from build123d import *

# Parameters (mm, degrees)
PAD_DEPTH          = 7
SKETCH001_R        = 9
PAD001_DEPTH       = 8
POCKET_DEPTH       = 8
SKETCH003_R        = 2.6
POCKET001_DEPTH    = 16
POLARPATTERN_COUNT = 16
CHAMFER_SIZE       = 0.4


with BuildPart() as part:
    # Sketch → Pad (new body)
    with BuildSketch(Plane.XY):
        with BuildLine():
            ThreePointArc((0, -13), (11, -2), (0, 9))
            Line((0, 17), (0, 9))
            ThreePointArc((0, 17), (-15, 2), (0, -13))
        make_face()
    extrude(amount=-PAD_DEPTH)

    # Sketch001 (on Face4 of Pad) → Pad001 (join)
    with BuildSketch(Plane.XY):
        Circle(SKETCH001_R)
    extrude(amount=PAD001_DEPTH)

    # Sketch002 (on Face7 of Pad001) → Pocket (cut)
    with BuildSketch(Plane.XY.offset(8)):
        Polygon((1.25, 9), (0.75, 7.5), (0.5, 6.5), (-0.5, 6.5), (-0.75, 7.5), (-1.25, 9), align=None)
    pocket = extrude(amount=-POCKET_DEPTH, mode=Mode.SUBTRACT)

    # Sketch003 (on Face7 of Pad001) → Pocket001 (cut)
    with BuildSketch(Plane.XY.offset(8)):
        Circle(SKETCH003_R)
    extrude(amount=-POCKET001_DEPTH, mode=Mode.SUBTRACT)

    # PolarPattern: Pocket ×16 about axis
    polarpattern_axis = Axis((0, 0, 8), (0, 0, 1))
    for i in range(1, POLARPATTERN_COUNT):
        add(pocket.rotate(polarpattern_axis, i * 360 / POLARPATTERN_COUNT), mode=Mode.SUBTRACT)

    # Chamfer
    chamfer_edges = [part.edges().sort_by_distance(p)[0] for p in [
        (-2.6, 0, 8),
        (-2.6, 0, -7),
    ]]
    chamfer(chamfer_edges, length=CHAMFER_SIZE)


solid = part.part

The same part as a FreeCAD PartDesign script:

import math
import FreeCAD as App
import Part
import Sketcher

V = App.Vector


def edges_at(feature, points):
    """Names of the edges that pass closest to the given points."""
    edges = feature.Shape.Edges
    near = lambda p: min(range(len(edges)), key=lambda i: edges[i].distToShape(Part.Vertex(*p))[0])
    return sorted({f"Edge{near(p) + 1}" for p in points})

doc = App.newDocument("Part")
body = doc.addObject("PartDesign::Body", "Body")

# Sketch on XY plane
sketch1 = body.newObject("Sketcher::SketchObject", "Sketch")
sketch1.AttachmentSupport = (doc.getObject("XY_Plane"), [""])
sketch1.MapMode = "FlatFace"
sketch1.addGeometry(Part.ArcOfCircle(Part.Circle(V(0, -2, 0), V(0, 0, 1), 11), math.radians(-90), math.radians(90)), False)
sketch1.addGeometry(Part.LineSegment(V(0, 9, 0), V(0, 17, 0)), False)
sketch1.addGeometry(Part.ArcOfCircle(Part.Circle(V(0, 2, 0), V(0, 0, 1), 15), math.radians(90), math.radians(270)), False)
sketch1.addConstraint(Sketcher.Constraint("Coincident", 0, 2, 1, 1))
sketch1.addConstraint(Sketcher.Constraint("Coincident", 1, 2, 2, 1))
sketch1.addConstraint(Sketcher.Constraint("Tangent", 2, 2, 0, 1))
sketch1.addConstraint(Sketcher.Constraint("Vertical", 1))
sketch1.addConstraint(Sketcher.Constraint("Symmetric", 0, 3, 2, 3, -1, 1))
sketch1.addConstraint(Sketcher.Constraint("PointOnObject", 0, 3, -2))
sketch1.addConstraint(Sketcher.Constraint("PointOnObject", 0, 2, -2))
sketch1.addConstraint(Sketcher.Constraint("Radius", 0, 11.0))
sketch1.addConstraint(Sketcher.Constraint("Radius", 2, 15.0))
pad1 = body.newObject("PartDesign::Pad", "Pad")
pad1.Profile = sketch1
pad1.Length = 7
pad1.Reversed = True

# Sketch on XY plane
sketch2 = body.newObject("Sketcher::SketchObject", "Sketch001")
sketch2.AttachmentSupport = (doc.getObject("XY_Plane"), [""])
sketch2.MapMode = "FlatFace"
sketch2.addGeometry(Part.Circle(V(0, 0, 0), V(0, 0, 1), 9), False)
sketch2.addConstraint(Sketcher.Constraint("Coincident", 0, 3, -1, 1))
sketch2.addConstraint(Sketcher.Constraint("Diameter", 0, 18.0))
pad2 = body.newObject("PartDesign::Pad", "Pad001")
pad2.Profile = sketch2
pad2.Length = 8

# Sketch on XY plane
sketch3 = body.newObject("Sketcher::SketchObject", "Sketch002")
sketch3.AttachmentSupport = (doc.getObject("XY_Plane"), [""])
sketch3.MapMode = "FlatFace"
sketch3.AttachmentOffset = App.Placement(V(0, 0, 8), App.Rotation())
sketch3.addGeometry(Part.LineSegment(V(0.8, 7.5, 0), V(1.2, 9, 0)), False)
sketch3.addGeometry(Part.LineSegment(V(1.2, 9, 0), V(-1.2, 9, 0)), False)
sketch3.addGeometry(Part.LineSegment(V(-1.2, 9, 0), V(-0.8, 7.5, 0)), False)
sketch3.addGeometry(Part.LineSegment(V(-0.8, 7.5, 0), V(-0.5, 6.5, 0)), False)
sketch3.addGeometry(Part.LineSegment(V(-0.5, 6.5, 0), V(0.5, 6.5, 0)), False)
sketch3.addGeometry(Part.LineSegment(V(0.5, 6.5, 0), V(0.8, 7.5, 0)), False)
sketch3.addConstraint(Sketcher.Constraint("Coincident", 0, 2, 1, 1))
sketch3.addConstraint(Sketcher.Constraint("Coincident", 1, 2, 2, 1))
sketch3.addConstraint(Sketcher.Constraint("Coincident", 2, 2, 3, 1))
sketch3.addConstraint(Sketcher.Constraint("Coincident", 3, 2, 4, 1))
sketch3.addConstraint(Sketcher.Constraint("Coincident", 4, 2, 5, 1))
sketch3.addConstraint(Sketcher.Constraint("Coincident", 5, 2, 0, 1))
sketch3.addConstraint(Sketcher.Constraint("Horizontal", 1))
sketch3.addConstraint(Sketcher.Constraint("Horizontal", 4))
sketch3.addConstraint(Sketcher.Constraint("Symmetric", 2, 2, 5, 2, -2))
sketch3.addConstraint(Sketcher.Constraint("Equal", 0, 2))
sketch3.addConstraint(Sketcher.Constraint("Equal", 3, 5))
sketch3.addConstraint(Sketcher.Constraint("DistanceX", 4, 1, 4, 2, 1.0))
sketch3.addConstraint(Sketcher.Constraint("DistanceX", 1, 2, 1, 1, 2.5))
sketch3.addConstraint(Sketcher.Constraint("DistanceY", -1, 1, 0, 2, 9.0))
sketch3.addConstraint(Sketcher.Constraint("DistanceX", 2, 2, 0, 2, 2.0))
sketch3.addConstraint(Sketcher.Constraint("DistanceY", 3, 2, 2, 2, 1.0))
sketch3.addConstraint(Sketcher.Constraint("DistanceY", -1, 1, 2, 2, 7.5))
pocket1 = body.newObject("PartDesign::Pocket", "Pocket")
pocket1.Profile = sketch3
pocket1.Length = 8

# Sketch on XY plane
sketch4 = body.newObject("Sketcher::SketchObject", "Sketch003")
sketch4.AttachmentSupport = (doc.getObject("XY_Plane"), [""])
sketch4.MapMode = "FlatFace"
sketch4.AttachmentOffset = App.Placement(V(0, 0, 8), App.Rotation())
sketch4.addGeometry(Part.Circle(V(0, 0, 0), V(0, 0, 1), 2.6), False)
sketch4.addConstraint(Sketcher.Constraint("Coincident", 0, 3, -1, 1))
sketch4.addConstraint(Sketcher.Constraint("Diameter", 0, 5.2))
pocket2 = body.newObject("PartDesign::Pocket", "Pocket001")
pocket2.Profile = sketch4
pocket2.Length = 16
doc.recompute()

polarpattern = body.newObject("PartDesign::PolarPattern", "PolarPattern")
polarpattern.Originals = [pocket1]
polarpattern.Axis = (doc.getObject("Z_Axis"), [""])
polarpattern.Angle = 360
polarpattern.Occurrences = 16
body.Tip = polarpattern
doc.recompute()

chamfer = body.newObject("PartDesign::Chamfer", "Chamfer")
chamfer.Base = (polarpattern, edges_at(polarpattern, [(-2.6, 0, 8), (-2.6, 0, -7)]))
chamfer.Size = 0.4

doc.recompute()
